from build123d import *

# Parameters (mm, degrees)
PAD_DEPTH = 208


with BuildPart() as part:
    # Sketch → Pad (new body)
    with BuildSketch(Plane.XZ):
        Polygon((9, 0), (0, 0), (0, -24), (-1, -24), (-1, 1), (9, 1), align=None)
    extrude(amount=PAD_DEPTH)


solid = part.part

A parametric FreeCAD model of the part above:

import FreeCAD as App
import Part
import Sketcher
from FreeCAD import Vector

doc = App.newDocument("Part")
params = doc.addObject("Spreadsheet::Sheet", "Params")
for row, (alias, value) in enumerate([
    ("sketch1_width", "9 mm"),
    ("sketch1_width2", "10 mm"),
    ("sketch1_height", "25 mm"),
    ("pad1_length", "208 mm"),
], start=1):
    params.set(f"A{row}", alias)
    params.set(f"B{row}", "=" + value)
    params.setAlias(f"B{row}", alias)

body = doc.addObject("PartDesign::Body", "Body")

sketch1 = body.newObject("Sketcher::SketchObject", "Sketch")
sketch1.AttachmentSupport = (doc.getObject("XZ_Plane"), [""])
sketch1.MapMode = "FlatFace"
sketch1.addGeometry([
    Part.LineSegment(Vector(0, 0, 0), Vector(9, 0, 0)),
    Part.LineSegment(Vector(9, 0, 0), Vector(9, 1, 0)),
    Part.LineSegment(Vector(9, 1, 0), Vector(-1, 1, 0)),
    Part.LineSegment(Vector(-1, 1, 0), Vector(-1, -24, 0)),
    Part.LineSegment(Vector(-1, -24, 0), Vector(0, -24, 0)),
    Part.LineSegment(Vector(0, -24, 0), Vector(0, 0, 0)),
], False)
sketch1.addConstraint([
    Sketcher.Constraint("Coincident", 0, 2, 1, 1),
    Sketcher.Constraint("Coincident", 1, 2, 2, 1),
    Sketcher.Constraint("Coincident", 2, 2, 3, 1),
    Sketcher.Constraint("Coincident", 3, 2, 4, 1),
    Sketcher.Constraint("Coincident", 4, 2, 5, 1),
    Sketcher.Constraint("Coincident", 5, 2, 0, 1),
    Sketcher.Constraint("Horizontal", 0),
    Sketcher.Constraint("Vertical", 1),
    Sketcher.Constraint("Horizontal", 2),
    Sketcher.Constraint("Vertical", 3),
    Sketcher.Constraint("Horizontal", 4),
    Sketcher.Constraint("Vertical", 5),
    Sketcher.Constraint("Coincident", 5, 2, -1, 1),
    Sketcher.Constraint("Equal", 4, 1),
    Sketcher.Constraint("DistanceX", 0, 1, 0, 2, 9.0),
    Sketcher.Constraint("DistanceX", 2, 2, 2, 1, 10.0),
    Sketcher.Constraint("DistanceY", 3, 2, 3, 1, 25.0),
])
sketch1.setExpression("Constraints[14]", "Params.sketch1_width")
sketch1.setExpression("Constraints[15]", "Params.sketch1_width2")
sketch1.setExpression("Constraints[16]", "Params.sketch1_height")
pad1 = body.newObject("PartDesign::Pad", "Pad")
pad1.Profile = sketch1
pad1.setExpression("Length", "Params.pad1_length")

doc.recompute()
